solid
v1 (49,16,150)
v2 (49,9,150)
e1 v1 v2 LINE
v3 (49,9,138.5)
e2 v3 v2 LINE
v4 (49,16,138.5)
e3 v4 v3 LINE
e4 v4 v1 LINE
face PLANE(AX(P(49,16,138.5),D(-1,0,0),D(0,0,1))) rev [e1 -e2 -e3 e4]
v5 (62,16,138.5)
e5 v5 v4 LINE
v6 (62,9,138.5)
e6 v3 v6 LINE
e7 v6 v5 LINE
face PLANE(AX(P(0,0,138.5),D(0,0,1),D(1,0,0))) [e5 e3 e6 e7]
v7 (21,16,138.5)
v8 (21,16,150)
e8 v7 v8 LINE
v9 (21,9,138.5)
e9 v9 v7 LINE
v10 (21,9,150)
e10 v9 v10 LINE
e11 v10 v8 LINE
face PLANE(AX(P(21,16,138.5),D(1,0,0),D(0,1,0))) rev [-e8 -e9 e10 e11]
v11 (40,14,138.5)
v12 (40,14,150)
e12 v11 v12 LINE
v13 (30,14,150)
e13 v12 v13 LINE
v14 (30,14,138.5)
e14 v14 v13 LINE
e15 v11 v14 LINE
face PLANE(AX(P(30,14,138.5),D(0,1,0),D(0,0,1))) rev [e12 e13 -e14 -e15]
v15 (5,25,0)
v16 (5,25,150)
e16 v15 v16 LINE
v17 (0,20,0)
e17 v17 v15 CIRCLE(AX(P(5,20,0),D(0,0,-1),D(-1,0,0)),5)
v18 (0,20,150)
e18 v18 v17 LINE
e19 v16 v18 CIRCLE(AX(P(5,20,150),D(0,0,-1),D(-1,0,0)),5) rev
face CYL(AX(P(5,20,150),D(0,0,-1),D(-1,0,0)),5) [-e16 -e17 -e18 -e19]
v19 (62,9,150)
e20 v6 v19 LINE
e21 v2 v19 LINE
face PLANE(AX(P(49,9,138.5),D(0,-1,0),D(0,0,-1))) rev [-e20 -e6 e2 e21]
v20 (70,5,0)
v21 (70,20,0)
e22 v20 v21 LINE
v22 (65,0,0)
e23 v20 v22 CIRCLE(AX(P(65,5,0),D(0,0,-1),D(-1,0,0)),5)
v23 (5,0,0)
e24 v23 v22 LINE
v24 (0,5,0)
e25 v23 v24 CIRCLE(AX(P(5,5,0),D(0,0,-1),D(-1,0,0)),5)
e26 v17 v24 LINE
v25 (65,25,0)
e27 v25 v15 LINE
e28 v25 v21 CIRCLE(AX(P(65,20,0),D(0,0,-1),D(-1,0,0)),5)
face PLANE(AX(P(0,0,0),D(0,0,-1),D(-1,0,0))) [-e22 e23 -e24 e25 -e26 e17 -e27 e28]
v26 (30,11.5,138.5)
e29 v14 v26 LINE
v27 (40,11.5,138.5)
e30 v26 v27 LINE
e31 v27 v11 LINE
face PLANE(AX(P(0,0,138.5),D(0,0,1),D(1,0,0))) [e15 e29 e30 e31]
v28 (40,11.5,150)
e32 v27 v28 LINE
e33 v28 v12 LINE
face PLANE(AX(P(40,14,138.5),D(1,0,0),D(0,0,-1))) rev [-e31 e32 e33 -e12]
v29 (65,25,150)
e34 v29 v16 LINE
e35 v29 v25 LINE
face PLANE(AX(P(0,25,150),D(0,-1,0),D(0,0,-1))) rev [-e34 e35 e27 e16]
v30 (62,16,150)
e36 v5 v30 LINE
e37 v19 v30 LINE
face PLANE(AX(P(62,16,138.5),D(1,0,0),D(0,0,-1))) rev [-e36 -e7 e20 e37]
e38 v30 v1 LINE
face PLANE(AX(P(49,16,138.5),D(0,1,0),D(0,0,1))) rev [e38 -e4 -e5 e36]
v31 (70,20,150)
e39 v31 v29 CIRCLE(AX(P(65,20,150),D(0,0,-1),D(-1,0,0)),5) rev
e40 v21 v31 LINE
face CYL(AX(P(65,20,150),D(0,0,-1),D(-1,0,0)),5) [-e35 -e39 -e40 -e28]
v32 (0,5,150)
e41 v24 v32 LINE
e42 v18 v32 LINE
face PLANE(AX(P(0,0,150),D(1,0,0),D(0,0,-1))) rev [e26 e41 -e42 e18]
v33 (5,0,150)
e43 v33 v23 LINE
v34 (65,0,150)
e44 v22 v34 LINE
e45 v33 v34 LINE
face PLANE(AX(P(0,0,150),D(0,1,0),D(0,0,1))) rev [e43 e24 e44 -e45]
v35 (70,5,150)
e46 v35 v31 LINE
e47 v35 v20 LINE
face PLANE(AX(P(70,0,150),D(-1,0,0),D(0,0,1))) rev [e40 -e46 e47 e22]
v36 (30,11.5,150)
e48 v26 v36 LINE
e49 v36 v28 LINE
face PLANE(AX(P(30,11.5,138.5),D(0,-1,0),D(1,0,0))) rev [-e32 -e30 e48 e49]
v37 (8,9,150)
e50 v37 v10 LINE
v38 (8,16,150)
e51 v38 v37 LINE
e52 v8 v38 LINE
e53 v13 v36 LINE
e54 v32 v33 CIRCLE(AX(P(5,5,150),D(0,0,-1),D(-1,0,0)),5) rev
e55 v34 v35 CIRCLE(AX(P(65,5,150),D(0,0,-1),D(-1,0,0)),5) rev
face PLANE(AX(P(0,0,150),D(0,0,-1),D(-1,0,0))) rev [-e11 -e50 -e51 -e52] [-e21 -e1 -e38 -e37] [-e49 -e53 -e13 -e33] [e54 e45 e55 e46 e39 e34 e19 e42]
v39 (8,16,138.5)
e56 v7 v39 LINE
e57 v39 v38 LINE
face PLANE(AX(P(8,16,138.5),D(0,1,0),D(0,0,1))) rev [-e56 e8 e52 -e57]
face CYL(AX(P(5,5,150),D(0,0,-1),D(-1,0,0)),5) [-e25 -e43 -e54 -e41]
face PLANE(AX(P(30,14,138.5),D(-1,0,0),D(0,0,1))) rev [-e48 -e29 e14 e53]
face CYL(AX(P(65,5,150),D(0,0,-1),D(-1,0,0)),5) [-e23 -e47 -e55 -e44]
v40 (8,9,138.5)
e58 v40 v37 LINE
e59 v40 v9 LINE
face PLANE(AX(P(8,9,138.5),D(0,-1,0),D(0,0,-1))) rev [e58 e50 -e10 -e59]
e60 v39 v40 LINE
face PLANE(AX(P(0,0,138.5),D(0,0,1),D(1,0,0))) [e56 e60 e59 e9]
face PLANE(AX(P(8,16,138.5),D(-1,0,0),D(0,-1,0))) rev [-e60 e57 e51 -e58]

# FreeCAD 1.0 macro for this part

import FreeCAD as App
import Part
import Sketcher
Q = App.Units.Quantity


def edges_at(feature, points):
    """Names of the edges that pass closest to the given points."""
    edges = feature.Shape.Edges
    near = lambda p: min(range(len(edges)), key=lambda i: edges[i].distToShape(Part.Vertex(*p))[0])
    return sorted({f"Edge{near(p) + 1}" for p in points})

doc = App.newDocument("Part")
body = doc.addObject("PartDesign::Body", "Body")

sketch1 = doc.addObject("Sketcher::SketchObject", "Sketch")
body.addObject(sketch1)
sketch1.AttachmentSupport = (doc.XY_Plane, [""])
sketch1.MapMode = "FlatFace"
sketch1.addGeometry(Part.LineSegment(App.Vector(0, 25, 0), App.Vector(0, 0, 0)), False)
sketch1.addGeometry(Part.LineSegment(App.Vector(0, 0, 0), App.Vector(70, 0, 0)), False)
sketch1.addGeometry(Part.LineSegment(App.Vector(70, 0, 0), App.Vector(70, 25, 0)), False)
sketch1.addGeometry(Part.LineSegment(App.Vector(70, 25, 0), App.Vector(0, 25, 0)), False)
sketch1.addConstraint(Sketcher.Constraint("Coincident", 0, 2, 1, 1))
sketch1.addConstraint(Sketcher.Constraint("Coincident", 1, 2, 2, 1))
sketch1.addConstraint(Sketcher.Constraint("Coincident", 2, 2, 3, 1))
sketch1.addConstraint(Sketcher.Constraint("Coincident", 3, 2, 0, 1))
sketch1.addConstraint(Sketcher.Constraint("Vertical", 0))
sketch1.addConstraint(Sketcher.Constraint("Horizontal", 1))
sketch1.addConstraint(Sketcher.Constraint("Vertical", 2))
sketch1.addConstraint(Sketcher.Constraint("Horizontal", 3))
sketch1.addConstraint(Sketcher.Constraint("Coincident", 0, 2, -1, 1))
sketch1.addConstraint(Sketcher.Constraint("DistanceX", 1, 1, 1, 2, Q("70 mm")))
sketch1.addConstraint(Sketcher.Constraint("DistanceY", 0, 2, 0, 1, Q("25 mm")))
pad1 = doc.addObject("PartDesign::Pad", "Pad")
body.addObject(pad1)
pad1.Profile = sketch1
pad1.Length = 150
doc.recompute()

fillet = doc.addObject("PartDesign::Fillet", "Fillet")
body.addObject(fillet)
fillet.Base = (pad1, edges_at(pad1, [
    (0, 25, 75),
    (70, 25, 75),
    (70, 0, 75),
    (0, 0, 75),
]))
fillet.Radius = 5

sketch2 = doc.addObject("Sketcher::SketchObject", "Sketch001")
body.addObject(sketch2)
sketch2.AttachmentSupport = (doc.XY_Plane, [""])
sketch2.MapMode = "FlatFace"
sketch2.AttachmentOffset = App.Placement(App.Vector(0, 0, 150), App.Rotation())
sketch2.addGeometry(Part.LineSegment(App.Vector(8, 16, 0), App.Vector(8, 9, 0)), False)
sketch2.addGeometry(Part.LineSegment(App.Vector(8, 9, 0), App.Vector(21, 9, 0)), False)
sketch2.addGeometry(Part.LineSegment(App.Vector(21, 9, 0), App.Vector(21, 16, 0)), False)
sketch2.addGeometry(Part.LineSegment(App.Vector(21, 16, 0), App.Vector(8, 16, 0)), False)
sketch2.addGeometry(Part.LineSegment(App.Vector(49, 16, 0), App.Vector(49, 9, 0)), False)
sketch2.addGeometry(Part.LineSegment(App.Vector(49, 9, 0), App.Vector(62, 9, 0)), False)
sketch2.addGeometry(Part.LineSegment(App.Vector(62, 9, 0), App.Vector(62, 16, 0)), False)
sketch2.addGeometry(Part.LineSegment(App.Vector(62, 16, 0), App.Vector(49, 16, 0)), False)
sketch2.addGeometry(Part.LineSegment(App.Vector(30, 14, 0), App.Vector(30, 11.5, 0)), False)
sketch2.addGeometry(Part.LineSegment(App.Vector(30, 11.5, 0), App.Vector(40, 11.5, 0)), False)
sketch2.addGeometry(Part.LineSegment(App.Vector(40, 11.5, 0), App.Vector(40, 14, 0)), False)
sketch2.addGeometry(Part.LineSegment(App.Vector(40, 14, 0), App.Vector(30, 14, 0)), False)
sketch2.addConstraint(Sketcher.Constraint("Coincident", 0, 2, 1, 1))
sketch2.addConstraint(Sketcher.Constraint("Coincident", 1, 2, 2, 1))
sketch2.addConstraint(Sketcher.Constraint("Coincident", 2, 2, 3, 1))
sketch2.addConstraint(Sketcher.Constraint("Coincident", 3, 2, 0, 1))
sketch2.addConstraint(Sketcher.Constraint("Coincident", 4, 2, 5, 1))
sketch2.addConstraint(Sketcher.Constraint("Coincident", 5, 2, 6, 1))
sketch2.addConstraint(Sketcher.Constraint("Coincident", 6, 2, 7, 1))
sketch2.addConstraint(Sketcher.Constraint("Coincident", 7, 2, 4, 1))
sketch2.addConstraint(Sketcher.Constraint("Coincident", 8, 2, 9, 1))
sketch2.addConstraint(Sketcher.Constraint("Coincident", 9, 2, 10, 1))
sketch2.addConstraint(Sketcher.Constraint("Coincident", 10, 2, 11, 1))
sketch2.addConstraint(Sketcher.Constraint("Coincident", 11, 2, 8, 1))
sketch2.addConstraint(Sketcher.Constraint("Vertical", 0))
sketch2.addConstraint(Sketcher.Constraint("Horizontal", 1))
sketch2.addConstraint(Sketcher.Constraint("Vertical", 2))
sketch2.addConstraint(Sketcher.Constraint("Horizontal", 3))
sketch2.addConstraint(Sketcher.Constraint("Vertical", 4))
sketch2.addConstraint(Sketcher.Constraint("Horizontal", 5))
sketch2.addConstraint(Sketcher.Constraint("Vertical", 6))
sketch2.addConstraint(Sketcher.Constraint("Horizontal", 7))
sketch2.addConstraint(Sketcher.Constraint("Vertical", 8))
sketch2.addConstraint(Sketcher.Constraint("Horizontal", 9))
sketch2.addConstraint(Sketcher.Constraint("Vertical", 10))
sketch2.addConstraint(Sketcher.Constraint("Horizontal", 11))
sketch2.addConstraint(Sketcher.Constraint("Horizontal", 1, 2, 4, 2))
sketch2.addConstraint(Sketcher.Constraint("Horizontal", 3, 2, 6, 2))
sketch2.addConstraint(Sketcher.Constraint("Equal", 3, 5))
sketch2.addConstraint(Sketcher.Constraint("DistanceX", 1, 1, 1, 2, Q("13 mm")))
sketch2.addConstraint(Sketcher.Constraint("DistanceX", 9, 1, 9, 2, Q("10 mm")))
sketch2.addConstraint(Sketcher.Constraint("DistanceY", 0, 2, 0, 1, Q("7 mm")))
sketch2.addConstraint(Sketcher.Constraint("DistanceY", 8, 2, 8, 1, Q("2.5 mm")))
sketch2.addConstraint(Sketcher.Constraint("DistanceX", -1, 1, 0, 2, Q("8 mm")))
sketch2.addConstraint(Sketcher.Constraint("DistanceY", -1, 1, 0, 2, Q("9 mm")))
sketch2.addConstraint(Sketcher.Constraint("DistanceX", -1, 1, 4, 2, Q("49 mm")))
sketch2.addConstraint(Sketcher.Constraint("DistanceX", -1, 1, 8, 2, Q("30 mm")))
sketch2.addConstraint(Sketcher.Constraint("DistanceY", -1, 1, 10, 2, Q("14 mm")))
pocket1 = doc.addObject("PartDesign::Pocket", "Pocket")
body.addObject(pocket1)
pocket1.Profile = sketch2
pocket1.Length = 11.5

doc.recompute()
